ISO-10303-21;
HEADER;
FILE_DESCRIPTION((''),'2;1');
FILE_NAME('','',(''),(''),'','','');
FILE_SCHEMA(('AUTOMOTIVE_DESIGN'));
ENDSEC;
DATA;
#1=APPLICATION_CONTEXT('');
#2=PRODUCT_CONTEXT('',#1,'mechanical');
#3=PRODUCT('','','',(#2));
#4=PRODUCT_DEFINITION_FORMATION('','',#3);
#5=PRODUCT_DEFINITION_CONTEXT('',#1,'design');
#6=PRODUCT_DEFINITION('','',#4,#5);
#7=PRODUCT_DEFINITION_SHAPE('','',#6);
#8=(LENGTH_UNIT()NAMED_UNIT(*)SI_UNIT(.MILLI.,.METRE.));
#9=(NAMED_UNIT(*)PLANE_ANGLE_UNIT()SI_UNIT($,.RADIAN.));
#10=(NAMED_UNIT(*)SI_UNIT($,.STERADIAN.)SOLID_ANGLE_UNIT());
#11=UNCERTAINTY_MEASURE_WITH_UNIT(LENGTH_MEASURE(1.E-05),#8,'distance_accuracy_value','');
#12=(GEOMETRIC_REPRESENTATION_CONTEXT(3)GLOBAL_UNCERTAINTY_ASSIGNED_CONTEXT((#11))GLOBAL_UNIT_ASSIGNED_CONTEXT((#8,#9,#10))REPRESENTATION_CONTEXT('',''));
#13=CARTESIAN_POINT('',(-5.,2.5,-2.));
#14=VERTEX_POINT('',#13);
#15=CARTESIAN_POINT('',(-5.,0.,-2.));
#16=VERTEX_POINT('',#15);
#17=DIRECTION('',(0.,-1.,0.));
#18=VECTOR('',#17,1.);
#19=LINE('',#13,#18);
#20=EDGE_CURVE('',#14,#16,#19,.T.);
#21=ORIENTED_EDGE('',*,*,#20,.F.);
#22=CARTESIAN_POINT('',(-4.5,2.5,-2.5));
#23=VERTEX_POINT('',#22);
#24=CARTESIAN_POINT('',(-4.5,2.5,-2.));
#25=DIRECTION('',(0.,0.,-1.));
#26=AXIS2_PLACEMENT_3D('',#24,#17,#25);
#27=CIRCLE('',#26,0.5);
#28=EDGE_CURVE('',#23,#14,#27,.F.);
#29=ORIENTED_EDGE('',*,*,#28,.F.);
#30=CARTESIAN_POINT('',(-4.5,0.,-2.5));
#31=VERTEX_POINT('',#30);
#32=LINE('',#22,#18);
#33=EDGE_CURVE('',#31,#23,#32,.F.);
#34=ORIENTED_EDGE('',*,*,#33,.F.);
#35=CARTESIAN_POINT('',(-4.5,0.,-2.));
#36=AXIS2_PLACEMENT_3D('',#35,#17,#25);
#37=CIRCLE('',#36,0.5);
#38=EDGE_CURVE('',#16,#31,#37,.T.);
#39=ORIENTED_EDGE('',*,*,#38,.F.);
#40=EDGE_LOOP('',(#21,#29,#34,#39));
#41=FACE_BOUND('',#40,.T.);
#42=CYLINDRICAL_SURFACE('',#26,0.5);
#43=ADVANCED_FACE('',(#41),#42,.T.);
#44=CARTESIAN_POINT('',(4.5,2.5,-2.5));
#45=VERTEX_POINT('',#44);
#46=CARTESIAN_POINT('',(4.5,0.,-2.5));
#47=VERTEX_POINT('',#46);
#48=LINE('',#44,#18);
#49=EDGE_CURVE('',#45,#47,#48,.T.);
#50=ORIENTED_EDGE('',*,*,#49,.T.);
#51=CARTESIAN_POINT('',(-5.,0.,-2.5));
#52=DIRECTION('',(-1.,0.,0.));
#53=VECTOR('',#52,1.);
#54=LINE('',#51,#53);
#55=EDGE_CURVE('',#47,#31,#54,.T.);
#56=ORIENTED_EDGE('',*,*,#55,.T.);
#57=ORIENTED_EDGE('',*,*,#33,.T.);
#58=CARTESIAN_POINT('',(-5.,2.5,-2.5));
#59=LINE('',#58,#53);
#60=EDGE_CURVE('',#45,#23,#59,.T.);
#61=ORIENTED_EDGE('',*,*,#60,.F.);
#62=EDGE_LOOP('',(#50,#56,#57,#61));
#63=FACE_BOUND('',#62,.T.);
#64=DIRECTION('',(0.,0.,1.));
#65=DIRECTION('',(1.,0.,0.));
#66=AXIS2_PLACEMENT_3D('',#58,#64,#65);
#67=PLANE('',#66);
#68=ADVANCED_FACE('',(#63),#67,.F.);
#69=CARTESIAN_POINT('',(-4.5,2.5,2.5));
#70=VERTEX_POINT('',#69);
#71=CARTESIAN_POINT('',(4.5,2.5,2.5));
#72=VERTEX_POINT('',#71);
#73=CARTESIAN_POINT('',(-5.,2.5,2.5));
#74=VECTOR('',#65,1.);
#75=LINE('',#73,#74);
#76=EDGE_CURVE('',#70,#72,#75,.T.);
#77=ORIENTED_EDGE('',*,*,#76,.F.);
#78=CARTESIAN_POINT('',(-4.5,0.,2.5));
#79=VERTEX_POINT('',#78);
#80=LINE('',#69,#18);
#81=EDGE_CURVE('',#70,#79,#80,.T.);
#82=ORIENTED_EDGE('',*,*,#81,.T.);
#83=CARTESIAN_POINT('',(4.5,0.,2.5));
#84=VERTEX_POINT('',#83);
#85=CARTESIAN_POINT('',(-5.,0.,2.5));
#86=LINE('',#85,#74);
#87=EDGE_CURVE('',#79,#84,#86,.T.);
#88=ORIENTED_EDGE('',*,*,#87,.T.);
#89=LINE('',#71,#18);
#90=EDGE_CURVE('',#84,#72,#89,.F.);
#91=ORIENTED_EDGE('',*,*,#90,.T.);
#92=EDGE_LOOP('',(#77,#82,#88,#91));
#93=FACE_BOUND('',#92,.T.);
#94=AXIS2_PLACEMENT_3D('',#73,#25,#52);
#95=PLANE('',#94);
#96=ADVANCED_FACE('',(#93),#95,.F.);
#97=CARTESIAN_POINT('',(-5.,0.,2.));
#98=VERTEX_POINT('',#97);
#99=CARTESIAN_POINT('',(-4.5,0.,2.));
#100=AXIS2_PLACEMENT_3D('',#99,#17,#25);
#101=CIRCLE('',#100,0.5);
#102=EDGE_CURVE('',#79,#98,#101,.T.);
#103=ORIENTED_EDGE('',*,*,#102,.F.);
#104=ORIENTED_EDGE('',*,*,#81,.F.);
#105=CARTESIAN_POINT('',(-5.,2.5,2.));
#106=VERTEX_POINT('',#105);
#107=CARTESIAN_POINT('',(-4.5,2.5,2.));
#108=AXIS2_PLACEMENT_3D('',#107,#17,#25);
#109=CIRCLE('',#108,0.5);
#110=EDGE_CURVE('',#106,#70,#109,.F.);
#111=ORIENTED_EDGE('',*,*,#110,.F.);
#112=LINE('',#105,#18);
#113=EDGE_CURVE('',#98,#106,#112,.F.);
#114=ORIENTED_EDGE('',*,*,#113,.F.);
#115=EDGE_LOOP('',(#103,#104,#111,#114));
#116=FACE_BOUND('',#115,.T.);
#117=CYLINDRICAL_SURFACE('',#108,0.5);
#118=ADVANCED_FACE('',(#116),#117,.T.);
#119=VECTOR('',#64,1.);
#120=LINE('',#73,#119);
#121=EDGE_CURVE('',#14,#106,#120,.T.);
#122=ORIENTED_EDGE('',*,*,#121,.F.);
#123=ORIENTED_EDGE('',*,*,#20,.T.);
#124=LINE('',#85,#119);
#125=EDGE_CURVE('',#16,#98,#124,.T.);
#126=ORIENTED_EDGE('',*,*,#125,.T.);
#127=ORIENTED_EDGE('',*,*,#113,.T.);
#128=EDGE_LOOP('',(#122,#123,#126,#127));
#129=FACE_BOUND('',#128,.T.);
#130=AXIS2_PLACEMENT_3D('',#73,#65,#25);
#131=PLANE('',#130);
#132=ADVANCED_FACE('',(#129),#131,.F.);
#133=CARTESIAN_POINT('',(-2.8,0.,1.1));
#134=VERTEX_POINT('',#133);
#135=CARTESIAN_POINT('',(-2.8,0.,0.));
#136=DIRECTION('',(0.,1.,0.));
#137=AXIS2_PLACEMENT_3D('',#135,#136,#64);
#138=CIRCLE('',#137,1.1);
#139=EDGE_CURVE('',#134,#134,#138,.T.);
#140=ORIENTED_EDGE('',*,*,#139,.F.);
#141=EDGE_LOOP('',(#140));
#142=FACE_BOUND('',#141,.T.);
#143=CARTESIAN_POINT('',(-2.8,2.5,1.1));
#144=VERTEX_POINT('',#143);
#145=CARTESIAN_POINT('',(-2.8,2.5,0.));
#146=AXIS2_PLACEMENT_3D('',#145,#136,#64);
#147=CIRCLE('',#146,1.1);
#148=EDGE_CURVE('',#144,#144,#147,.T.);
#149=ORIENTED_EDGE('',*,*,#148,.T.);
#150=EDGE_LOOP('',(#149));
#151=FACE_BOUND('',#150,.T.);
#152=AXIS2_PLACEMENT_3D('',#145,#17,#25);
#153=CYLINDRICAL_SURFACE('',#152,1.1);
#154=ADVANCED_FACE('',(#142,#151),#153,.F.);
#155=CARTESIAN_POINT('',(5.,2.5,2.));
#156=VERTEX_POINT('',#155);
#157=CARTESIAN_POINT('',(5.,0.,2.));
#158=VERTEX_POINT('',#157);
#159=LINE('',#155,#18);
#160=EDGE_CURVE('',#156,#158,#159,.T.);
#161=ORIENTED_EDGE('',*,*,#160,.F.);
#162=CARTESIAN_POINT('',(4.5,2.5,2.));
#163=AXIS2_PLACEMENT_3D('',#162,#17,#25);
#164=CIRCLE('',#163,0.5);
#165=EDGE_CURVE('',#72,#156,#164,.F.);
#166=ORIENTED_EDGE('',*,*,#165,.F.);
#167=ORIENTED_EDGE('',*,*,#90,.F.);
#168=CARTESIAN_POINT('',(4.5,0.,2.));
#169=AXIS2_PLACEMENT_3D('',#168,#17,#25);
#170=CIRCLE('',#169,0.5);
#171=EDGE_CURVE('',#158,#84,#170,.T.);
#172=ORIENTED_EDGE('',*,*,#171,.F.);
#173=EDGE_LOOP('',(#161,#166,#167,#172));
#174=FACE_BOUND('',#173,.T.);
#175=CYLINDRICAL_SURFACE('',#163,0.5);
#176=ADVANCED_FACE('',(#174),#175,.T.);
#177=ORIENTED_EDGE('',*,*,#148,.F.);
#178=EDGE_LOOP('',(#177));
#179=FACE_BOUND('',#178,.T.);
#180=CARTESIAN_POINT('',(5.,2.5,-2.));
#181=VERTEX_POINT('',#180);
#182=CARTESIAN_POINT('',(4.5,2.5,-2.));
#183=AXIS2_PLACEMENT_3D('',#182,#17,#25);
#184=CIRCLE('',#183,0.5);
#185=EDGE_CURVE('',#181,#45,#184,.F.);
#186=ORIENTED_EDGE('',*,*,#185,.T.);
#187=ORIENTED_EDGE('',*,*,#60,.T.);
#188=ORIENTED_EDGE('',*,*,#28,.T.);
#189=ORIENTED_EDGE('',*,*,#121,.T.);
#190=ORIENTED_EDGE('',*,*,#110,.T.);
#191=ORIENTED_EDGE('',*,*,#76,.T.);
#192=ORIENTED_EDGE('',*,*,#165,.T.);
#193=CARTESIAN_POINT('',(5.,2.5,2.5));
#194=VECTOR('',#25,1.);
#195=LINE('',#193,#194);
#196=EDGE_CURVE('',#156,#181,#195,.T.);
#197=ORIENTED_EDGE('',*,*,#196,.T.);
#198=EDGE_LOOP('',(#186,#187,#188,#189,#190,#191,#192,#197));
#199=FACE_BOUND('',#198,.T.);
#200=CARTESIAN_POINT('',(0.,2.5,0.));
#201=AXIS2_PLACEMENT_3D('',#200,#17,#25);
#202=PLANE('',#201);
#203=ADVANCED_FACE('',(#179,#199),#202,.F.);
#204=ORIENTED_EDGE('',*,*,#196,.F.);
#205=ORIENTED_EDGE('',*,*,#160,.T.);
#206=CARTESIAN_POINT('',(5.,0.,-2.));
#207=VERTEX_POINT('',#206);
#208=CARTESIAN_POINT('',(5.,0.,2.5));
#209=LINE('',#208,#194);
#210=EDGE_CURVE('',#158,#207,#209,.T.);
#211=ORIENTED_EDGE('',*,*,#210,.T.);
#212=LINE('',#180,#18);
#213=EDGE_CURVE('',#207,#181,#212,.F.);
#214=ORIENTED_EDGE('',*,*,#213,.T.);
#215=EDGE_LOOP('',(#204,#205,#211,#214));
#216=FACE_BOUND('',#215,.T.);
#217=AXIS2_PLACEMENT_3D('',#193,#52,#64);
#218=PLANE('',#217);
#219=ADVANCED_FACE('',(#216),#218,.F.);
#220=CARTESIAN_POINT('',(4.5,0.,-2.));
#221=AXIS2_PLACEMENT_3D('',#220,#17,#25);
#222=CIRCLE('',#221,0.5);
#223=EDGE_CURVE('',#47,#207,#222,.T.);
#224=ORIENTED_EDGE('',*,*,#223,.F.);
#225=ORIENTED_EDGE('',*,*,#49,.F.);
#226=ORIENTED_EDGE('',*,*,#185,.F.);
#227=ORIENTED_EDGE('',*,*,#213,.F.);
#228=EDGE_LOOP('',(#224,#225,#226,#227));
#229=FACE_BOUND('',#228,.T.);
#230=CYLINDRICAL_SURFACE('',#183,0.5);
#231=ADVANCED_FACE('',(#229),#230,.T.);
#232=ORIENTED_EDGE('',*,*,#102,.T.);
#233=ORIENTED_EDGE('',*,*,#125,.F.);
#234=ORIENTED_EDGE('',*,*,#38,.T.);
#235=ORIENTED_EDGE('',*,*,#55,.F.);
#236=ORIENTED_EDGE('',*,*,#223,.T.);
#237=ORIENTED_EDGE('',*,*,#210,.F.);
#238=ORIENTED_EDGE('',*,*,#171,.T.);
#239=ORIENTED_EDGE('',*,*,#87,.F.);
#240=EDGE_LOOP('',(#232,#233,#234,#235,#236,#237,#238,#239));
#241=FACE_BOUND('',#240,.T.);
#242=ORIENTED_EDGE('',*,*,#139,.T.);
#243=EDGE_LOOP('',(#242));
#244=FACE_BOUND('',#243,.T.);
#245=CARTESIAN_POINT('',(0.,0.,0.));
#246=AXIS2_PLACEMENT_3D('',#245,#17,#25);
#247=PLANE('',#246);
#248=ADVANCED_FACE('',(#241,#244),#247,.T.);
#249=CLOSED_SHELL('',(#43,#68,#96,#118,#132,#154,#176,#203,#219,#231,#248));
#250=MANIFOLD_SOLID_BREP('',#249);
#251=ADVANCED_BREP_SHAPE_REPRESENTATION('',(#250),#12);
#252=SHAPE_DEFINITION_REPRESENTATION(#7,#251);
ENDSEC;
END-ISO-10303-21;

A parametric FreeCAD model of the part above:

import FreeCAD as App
import Part
import Sketcher
from FreeCAD import Vector
Q = App.Units.Quantity


def edges_at(feature, points):
    """Names of the edges that pass closest to the given points."""
    edges = feature.Shape.Edges
    near = lambda p: min(range(len(edges)), key=lambda i: edges[i].distToShape(Part.Vertex(*p))[0])
    return sorted({f"Edge{near(p) + 1}" for p in points})


def add_polygon(sketch, points):
    """Adds a closed chain of lines whose ends are joined by coincident constraints."""
    first, n = sketch.GeometryCount, len(points)
    for a, b in zip(points, points[1:] + points[:1]):
        sketch.addGeometry(Part.LineSegment(App.Vector(*a, 0), App.Vector(*b, 0)), False)
    for i in range(n):
        sketch.addConstraint(Sketcher.Constraint("Coincident", first + i, 2, first + (i + 1) % n, 1))

doc = App.newDocument("Part")
body = doc.addObject("PartDesign::Body", "Body")

sketch1 = body.newObject("Sketcher::SketchObject", "Sketch")
sketch1.AttachmentSupport = (doc.getObject("XZ_Plane"), [""])
sketch1.MapMode = "FlatFace"
add_polygon(sketch1, [(-5, -2.5), (-5, 2.5), (5, 2.5), (5, -2.5)])
sketch1.addGeometry(Part.Circle(Vector(-2.8, 0, 0), Vector(0, 0, 1), 1.1), False)
sketch1.addConstraint([
    Sketcher.Constraint("Vertical", 0),
    Sketcher.Constraint("Horizontal", 1),
    Sketcher.Constraint("Vertical", 2),
    Sketcher.Constraint("Horizontal", 3),
    Sketcher.Constraint("Symmetric", 0, 2, 2, 2, -1, 1),
    Sketcher.Constraint("PointOnObject", 4, 3, -1),
    Sketcher.Constraint("Diameter", 4, Q("2.2 mm")),
    Sketcher.Constraint("DistanceX", 1, 1, 1, 2, Q("10 mm")),
    Sketcher.Constraint("DistanceY", 0, 1, 0, 2, Q("5 mm")),
    Sketcher.Constraint("DistanceX", 4, 3, -1, 1, Q("2.8 mm")),
])
pad1 = body.newObject("PartDesign::Pad", "Pad")
pad1.Profile = sketch1
pad1.Length = 2.5
pad1.Reversed = True
doc.recompute()

fillet = body.newObject("PartDesign::Fillet", "Fillet")
fillet.Base = (pad1, edges_at(pad1, [
    (5, 1.25, 2.5),
    (-5, 1.25, 2.5),
    (-5, 1.25, -2.5),
    (5, 1.25, -2.5),
]))
fillet.Radius = 0.5

doc.recompute()
